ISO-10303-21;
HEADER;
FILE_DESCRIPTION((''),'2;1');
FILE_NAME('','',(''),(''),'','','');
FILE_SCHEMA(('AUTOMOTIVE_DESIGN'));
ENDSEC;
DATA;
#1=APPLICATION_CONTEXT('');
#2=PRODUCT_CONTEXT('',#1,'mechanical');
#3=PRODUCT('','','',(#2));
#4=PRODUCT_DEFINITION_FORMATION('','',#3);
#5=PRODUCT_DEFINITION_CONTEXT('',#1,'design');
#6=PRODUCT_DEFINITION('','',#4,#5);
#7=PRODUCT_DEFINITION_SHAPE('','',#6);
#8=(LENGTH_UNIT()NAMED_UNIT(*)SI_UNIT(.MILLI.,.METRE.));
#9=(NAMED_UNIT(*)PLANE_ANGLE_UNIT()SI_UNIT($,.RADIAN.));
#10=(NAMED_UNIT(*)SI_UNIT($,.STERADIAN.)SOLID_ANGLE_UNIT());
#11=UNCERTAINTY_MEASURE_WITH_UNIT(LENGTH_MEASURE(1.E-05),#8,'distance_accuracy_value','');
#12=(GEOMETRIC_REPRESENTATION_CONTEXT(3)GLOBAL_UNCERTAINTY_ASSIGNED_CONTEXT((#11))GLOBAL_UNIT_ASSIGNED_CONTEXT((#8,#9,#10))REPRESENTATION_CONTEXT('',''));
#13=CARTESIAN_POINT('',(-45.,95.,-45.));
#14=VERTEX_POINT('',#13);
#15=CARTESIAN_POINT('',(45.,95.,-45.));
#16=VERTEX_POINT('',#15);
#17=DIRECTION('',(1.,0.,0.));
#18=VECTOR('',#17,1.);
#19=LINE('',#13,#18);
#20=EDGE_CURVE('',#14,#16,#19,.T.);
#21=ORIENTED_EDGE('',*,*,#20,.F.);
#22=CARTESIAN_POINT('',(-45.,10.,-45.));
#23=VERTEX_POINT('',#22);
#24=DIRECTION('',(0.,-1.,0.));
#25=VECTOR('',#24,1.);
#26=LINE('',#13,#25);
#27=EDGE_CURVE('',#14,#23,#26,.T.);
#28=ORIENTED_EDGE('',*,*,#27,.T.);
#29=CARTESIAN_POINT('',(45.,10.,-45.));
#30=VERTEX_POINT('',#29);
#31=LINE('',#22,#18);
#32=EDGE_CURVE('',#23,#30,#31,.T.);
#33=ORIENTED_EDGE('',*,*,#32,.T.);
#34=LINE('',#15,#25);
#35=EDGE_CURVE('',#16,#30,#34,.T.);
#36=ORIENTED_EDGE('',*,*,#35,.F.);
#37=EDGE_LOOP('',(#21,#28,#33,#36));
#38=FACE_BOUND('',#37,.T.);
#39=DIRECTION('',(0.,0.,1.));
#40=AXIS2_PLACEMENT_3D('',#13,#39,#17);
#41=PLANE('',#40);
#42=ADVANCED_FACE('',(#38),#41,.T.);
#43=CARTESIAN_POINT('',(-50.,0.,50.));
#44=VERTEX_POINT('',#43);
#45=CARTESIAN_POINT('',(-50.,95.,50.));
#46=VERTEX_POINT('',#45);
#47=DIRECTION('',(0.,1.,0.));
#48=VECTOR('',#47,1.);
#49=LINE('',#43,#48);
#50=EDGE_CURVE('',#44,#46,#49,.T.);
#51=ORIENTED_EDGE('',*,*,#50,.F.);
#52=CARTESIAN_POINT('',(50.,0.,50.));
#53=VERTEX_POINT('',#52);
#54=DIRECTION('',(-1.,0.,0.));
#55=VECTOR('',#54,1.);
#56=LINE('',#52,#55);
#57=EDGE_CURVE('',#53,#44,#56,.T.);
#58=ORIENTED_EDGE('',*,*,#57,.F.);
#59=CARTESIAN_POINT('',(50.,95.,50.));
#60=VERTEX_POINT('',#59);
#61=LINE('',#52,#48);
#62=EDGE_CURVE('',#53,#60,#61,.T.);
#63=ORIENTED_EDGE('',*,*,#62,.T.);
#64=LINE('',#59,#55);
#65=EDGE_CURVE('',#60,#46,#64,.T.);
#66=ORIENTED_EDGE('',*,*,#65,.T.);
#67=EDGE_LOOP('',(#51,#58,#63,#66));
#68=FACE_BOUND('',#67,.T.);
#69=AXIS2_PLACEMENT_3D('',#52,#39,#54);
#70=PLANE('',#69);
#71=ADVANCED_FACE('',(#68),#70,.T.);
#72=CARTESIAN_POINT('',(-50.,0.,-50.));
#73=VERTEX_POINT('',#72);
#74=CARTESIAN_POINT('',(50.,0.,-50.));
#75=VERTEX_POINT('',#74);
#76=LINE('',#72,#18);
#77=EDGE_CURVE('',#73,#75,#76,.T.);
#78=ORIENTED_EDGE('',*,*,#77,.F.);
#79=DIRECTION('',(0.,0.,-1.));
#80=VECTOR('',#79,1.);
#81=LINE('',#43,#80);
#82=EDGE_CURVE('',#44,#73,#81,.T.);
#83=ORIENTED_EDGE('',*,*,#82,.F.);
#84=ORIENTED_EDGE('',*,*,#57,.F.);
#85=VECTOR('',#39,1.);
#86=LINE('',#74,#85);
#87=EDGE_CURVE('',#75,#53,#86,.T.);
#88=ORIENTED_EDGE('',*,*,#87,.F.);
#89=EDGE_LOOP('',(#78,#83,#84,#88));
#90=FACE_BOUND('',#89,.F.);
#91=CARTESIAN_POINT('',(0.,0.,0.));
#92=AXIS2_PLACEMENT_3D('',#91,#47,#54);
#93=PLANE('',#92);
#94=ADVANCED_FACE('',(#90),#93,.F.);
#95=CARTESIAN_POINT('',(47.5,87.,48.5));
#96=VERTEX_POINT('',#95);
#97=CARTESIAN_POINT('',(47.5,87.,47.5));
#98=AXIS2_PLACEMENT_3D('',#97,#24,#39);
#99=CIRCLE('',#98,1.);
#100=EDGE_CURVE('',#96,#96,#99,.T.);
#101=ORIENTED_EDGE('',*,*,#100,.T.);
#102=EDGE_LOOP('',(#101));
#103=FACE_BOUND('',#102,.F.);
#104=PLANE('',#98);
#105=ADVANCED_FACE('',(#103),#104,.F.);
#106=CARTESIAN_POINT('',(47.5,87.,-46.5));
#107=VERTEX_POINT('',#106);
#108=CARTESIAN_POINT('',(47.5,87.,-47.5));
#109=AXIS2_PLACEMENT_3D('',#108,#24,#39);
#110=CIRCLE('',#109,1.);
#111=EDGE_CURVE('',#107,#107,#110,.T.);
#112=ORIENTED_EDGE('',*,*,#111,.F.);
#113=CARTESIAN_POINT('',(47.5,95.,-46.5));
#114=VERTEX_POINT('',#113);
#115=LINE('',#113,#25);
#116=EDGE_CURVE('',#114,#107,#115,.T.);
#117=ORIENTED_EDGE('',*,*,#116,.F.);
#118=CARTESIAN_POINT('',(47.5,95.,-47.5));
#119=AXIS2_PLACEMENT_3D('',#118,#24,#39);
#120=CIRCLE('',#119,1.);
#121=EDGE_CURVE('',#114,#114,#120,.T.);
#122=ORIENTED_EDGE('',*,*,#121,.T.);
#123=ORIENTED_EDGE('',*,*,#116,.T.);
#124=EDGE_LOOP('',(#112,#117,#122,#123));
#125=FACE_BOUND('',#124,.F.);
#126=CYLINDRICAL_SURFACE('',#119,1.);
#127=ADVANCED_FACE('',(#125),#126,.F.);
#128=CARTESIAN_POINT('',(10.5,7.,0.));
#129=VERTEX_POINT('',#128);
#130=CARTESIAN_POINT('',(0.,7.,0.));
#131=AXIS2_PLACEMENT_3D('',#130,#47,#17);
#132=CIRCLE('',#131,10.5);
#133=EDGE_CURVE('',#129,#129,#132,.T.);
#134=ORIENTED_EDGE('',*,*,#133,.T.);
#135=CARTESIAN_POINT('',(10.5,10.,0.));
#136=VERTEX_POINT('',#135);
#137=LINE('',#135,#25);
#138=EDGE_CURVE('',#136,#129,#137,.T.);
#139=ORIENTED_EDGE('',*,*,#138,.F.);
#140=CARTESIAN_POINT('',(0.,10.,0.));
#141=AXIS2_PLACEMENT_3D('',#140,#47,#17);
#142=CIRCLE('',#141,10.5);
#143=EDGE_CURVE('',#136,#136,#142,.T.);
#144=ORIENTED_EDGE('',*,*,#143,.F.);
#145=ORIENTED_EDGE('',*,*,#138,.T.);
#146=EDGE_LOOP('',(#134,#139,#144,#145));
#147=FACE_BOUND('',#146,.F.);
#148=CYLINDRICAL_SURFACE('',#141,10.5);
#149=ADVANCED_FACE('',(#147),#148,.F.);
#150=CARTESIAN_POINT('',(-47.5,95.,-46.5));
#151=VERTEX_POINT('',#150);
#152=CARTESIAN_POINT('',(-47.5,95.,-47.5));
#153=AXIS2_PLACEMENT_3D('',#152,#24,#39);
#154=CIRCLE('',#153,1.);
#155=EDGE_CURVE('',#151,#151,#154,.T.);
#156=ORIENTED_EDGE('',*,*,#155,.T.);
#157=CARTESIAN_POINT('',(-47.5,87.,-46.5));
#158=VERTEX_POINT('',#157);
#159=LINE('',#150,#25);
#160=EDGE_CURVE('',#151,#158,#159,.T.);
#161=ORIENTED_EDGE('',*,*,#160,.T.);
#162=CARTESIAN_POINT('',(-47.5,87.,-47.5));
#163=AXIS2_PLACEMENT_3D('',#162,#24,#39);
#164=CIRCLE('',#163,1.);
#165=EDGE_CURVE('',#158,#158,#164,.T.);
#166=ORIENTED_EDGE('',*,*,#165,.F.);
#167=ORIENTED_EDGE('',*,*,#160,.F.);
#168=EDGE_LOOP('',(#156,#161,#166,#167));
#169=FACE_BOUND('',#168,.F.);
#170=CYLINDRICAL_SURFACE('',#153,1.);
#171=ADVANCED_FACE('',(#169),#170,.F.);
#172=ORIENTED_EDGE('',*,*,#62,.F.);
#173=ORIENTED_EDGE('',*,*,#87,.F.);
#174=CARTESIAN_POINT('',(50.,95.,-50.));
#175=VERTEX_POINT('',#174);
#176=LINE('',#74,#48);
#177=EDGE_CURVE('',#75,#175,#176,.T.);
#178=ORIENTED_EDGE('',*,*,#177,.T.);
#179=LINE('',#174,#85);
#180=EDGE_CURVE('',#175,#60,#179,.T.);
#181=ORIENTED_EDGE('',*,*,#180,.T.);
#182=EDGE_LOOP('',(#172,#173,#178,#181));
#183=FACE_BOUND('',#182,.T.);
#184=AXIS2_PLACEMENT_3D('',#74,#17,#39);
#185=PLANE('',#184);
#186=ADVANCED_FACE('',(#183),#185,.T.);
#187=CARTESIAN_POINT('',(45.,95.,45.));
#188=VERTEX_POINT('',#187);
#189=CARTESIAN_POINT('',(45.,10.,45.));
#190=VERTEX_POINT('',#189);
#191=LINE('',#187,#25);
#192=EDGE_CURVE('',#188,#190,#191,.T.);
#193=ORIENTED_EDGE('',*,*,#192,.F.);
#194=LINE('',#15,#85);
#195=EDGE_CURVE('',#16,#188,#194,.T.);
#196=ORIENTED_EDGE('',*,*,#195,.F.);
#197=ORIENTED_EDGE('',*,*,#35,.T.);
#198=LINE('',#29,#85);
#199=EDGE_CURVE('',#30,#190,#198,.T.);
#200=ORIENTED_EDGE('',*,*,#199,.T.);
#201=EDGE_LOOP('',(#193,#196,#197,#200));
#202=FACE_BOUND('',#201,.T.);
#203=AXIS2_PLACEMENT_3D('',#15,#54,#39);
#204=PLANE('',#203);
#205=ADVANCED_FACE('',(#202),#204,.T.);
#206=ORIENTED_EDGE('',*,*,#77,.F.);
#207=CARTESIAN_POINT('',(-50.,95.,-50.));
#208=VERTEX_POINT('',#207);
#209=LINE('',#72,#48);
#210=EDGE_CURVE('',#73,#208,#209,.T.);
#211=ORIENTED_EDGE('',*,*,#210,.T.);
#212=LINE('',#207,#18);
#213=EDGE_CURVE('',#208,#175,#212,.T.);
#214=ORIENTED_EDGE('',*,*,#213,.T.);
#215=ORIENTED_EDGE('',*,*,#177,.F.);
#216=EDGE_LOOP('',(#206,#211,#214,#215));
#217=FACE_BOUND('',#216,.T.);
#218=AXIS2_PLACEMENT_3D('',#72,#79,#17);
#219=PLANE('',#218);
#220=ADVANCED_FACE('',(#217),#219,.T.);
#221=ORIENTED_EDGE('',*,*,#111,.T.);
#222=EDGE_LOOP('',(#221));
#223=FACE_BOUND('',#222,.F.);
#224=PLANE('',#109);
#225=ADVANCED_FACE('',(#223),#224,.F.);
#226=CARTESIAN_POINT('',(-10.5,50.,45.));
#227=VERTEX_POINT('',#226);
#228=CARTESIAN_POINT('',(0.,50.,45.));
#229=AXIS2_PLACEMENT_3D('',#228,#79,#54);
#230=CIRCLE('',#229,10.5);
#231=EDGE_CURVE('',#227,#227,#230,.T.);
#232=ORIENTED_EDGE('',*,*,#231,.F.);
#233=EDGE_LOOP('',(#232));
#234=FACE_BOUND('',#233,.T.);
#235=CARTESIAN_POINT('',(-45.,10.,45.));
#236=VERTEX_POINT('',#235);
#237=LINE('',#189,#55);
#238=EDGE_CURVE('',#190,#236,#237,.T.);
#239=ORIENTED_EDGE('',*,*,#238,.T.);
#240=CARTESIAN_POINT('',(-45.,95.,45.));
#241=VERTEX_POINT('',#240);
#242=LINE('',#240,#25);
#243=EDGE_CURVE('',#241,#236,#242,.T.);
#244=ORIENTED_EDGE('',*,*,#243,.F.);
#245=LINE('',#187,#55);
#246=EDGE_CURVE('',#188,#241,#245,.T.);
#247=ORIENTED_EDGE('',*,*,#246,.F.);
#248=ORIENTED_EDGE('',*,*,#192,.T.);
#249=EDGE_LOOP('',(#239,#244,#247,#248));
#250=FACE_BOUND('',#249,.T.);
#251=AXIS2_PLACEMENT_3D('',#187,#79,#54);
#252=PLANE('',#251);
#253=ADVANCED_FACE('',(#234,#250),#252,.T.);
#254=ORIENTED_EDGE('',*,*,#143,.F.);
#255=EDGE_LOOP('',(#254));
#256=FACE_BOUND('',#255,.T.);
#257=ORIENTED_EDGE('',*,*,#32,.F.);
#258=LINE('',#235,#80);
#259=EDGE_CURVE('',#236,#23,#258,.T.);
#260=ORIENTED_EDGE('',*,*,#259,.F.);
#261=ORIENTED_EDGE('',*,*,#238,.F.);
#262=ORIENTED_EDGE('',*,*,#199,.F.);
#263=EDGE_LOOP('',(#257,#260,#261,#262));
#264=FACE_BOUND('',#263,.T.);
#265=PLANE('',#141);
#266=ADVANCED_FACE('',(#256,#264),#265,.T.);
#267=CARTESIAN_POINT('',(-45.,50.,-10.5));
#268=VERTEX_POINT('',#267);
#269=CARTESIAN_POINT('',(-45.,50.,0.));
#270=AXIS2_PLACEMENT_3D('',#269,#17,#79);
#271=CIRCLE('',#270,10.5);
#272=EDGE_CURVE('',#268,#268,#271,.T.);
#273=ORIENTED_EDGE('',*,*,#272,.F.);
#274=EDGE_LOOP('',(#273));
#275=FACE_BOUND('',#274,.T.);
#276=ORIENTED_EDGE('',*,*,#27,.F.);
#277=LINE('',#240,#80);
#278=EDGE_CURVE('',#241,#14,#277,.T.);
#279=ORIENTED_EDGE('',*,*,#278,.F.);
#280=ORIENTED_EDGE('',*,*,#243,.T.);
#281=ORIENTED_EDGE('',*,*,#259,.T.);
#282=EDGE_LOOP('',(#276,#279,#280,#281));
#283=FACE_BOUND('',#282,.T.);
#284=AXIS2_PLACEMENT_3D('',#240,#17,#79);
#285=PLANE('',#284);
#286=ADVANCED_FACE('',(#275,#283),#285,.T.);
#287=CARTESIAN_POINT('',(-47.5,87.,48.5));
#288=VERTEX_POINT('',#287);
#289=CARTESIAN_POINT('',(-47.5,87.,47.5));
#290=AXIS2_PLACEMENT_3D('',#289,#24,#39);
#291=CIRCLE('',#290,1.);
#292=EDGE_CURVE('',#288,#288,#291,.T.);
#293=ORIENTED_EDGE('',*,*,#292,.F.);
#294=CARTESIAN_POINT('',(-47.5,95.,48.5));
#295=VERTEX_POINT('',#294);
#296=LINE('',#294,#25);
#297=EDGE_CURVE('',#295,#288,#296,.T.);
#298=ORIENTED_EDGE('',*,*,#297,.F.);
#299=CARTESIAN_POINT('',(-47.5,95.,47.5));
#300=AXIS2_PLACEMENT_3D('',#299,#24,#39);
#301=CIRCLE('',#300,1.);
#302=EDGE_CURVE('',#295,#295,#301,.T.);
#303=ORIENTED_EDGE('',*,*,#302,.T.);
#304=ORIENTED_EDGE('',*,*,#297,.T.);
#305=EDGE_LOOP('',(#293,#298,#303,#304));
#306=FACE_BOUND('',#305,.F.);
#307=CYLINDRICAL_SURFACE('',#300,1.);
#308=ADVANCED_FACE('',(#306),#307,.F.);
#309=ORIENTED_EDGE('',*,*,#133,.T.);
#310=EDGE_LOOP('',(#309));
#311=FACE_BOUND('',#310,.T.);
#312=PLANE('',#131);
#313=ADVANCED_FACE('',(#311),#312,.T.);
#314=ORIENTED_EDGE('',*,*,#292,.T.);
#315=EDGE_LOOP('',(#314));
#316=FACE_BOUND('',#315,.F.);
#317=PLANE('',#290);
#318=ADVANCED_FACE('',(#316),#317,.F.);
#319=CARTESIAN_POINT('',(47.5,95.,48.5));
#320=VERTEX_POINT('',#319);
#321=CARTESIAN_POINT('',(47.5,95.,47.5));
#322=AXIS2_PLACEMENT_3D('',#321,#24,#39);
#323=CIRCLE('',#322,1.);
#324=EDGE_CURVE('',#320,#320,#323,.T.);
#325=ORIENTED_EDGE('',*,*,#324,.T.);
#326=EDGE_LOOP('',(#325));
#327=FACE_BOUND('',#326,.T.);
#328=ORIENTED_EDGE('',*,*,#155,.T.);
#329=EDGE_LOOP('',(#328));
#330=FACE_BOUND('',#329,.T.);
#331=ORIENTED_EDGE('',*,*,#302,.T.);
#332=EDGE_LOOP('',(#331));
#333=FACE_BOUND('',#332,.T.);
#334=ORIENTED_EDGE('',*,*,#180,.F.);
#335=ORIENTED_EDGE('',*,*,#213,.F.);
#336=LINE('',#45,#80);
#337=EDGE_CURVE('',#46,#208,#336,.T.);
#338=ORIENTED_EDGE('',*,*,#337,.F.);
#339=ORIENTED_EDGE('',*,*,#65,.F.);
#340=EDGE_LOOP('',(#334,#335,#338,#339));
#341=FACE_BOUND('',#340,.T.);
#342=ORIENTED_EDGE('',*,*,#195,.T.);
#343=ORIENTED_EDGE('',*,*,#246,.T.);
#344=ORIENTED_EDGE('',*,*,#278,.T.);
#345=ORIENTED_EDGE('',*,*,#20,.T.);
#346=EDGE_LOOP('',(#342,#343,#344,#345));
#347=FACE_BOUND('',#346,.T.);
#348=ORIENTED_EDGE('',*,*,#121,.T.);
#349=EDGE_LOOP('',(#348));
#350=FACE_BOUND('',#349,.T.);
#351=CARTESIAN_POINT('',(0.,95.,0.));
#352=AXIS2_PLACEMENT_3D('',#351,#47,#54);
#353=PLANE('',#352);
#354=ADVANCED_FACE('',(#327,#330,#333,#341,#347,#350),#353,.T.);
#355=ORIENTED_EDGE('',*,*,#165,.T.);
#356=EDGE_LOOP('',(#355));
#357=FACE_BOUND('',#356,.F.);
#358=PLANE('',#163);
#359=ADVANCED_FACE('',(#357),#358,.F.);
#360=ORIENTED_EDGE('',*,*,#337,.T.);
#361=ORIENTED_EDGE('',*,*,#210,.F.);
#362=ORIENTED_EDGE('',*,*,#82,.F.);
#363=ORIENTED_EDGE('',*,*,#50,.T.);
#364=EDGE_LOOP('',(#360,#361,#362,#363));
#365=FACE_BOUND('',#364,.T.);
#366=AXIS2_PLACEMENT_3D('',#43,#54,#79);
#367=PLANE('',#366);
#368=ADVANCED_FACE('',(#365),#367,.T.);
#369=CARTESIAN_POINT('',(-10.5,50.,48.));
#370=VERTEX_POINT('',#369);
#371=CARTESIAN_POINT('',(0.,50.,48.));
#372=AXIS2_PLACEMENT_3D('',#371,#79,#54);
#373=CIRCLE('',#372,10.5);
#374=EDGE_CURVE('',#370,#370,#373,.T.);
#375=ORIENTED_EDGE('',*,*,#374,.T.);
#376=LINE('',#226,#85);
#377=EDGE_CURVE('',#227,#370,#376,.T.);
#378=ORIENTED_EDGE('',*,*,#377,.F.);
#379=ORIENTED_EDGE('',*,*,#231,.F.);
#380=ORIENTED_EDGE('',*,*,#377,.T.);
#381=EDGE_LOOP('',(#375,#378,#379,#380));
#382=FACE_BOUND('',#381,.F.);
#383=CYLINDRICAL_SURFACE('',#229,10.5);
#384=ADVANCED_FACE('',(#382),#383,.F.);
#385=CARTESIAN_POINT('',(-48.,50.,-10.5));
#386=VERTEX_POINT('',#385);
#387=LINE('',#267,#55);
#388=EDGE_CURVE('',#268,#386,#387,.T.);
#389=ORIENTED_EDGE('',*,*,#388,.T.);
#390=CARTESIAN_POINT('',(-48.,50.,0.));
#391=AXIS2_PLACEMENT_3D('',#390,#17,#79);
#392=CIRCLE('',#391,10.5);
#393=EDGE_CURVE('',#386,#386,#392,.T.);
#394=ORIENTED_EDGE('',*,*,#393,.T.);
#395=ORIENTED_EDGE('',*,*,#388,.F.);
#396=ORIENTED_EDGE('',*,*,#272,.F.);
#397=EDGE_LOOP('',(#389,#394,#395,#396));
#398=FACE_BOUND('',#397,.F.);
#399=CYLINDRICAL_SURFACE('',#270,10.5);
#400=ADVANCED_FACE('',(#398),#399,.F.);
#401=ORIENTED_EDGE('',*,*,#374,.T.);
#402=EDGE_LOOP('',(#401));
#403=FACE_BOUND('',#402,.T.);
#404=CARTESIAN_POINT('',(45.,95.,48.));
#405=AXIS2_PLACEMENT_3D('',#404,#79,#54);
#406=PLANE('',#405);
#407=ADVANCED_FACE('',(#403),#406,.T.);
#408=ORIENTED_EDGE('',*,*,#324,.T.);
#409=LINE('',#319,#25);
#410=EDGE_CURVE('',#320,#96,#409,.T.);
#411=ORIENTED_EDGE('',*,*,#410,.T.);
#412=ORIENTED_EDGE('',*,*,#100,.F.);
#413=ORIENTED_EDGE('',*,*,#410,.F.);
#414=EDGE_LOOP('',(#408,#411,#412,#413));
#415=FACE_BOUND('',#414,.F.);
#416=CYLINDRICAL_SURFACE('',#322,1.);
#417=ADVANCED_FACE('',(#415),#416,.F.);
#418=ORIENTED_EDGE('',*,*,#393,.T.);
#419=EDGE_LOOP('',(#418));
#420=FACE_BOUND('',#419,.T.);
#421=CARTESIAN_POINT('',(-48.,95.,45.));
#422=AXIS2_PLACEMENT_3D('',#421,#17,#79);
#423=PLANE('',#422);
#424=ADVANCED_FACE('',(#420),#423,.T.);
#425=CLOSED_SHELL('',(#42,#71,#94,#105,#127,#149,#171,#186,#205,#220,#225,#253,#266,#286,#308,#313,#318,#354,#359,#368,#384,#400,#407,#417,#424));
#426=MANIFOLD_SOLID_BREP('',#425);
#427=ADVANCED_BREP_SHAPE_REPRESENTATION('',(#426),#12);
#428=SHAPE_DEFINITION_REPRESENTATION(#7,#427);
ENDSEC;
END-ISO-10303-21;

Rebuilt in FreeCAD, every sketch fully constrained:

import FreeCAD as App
import Part
import Sketcher
Q = App.Units.Quantity


def add_polygon(sketch, points):
    """Adds a closed chain of lines whose ends are joined by coincident constraints."""
    first, n = sketch.GeometryCount, len(points)
    for a, b in zip(points, points[1:] + points[:1]):
        sketch.addGeometry(Part.LineSegment(App.Vector(*a, 0), App.Vector(*b, 0)), False)
    for i in range(n):
        sketch.addConstraint(Sketcher.Constraint("Coincident", first + i, 2, first + (i + 1) % n, 1))

doc = App.newDocument("Part")
body = doc.addObject("PartDesign::Body", "Body")

# Sketch on XZ plane
sketch1 = body.newObject("Sketcher::SketchObject", "Sketch")
sketch1.AttachmentSupport = (doc.getObject("XZ_Plane"), [""])
sketch1.MapMode = "FlatFace"
add_polygon(sketch1, [(50, -50), (-50, -50), (-50, 50), (50, 50)])  # lines 0-3
sketch1.addConstraint(Sketcher.Constraint("Horizontal", 0))
sketch1.addConstraint(Sketcher.Constraint("Vertical", 1))
sketch1.addConstraint(Sketcher.Constraint("Horizontal", 2))
sketch1.addConstraint(Sketcher.Constraint("Vertical", 3))
sketch1.addConstraint(Sketcher.Constraint("Symmetric", 0, 2, 2, 2, -1, 1))
sketch1.addConstraint(Sketcher.Constraint("Equal", 2, 1))
sketch1.addConstraint(Sketcher.Constraint("DistanceX", 0, 2, 0, 1, Q("100 mm")))
pad1 = body.newObject("PartDesign::Pad", "Pad")
pad1.Profile = sketch1
pad1.Length = 95
pad1.Reversed = True

# Sketch on XZ plane
sketch2 = body.newObject("Sketcher::SketchObject", "Sketch001")
sketch2.AttachmentSupport = (doc.getObject("XZ_Plane"), [""])
sketch2.MapMode = "FlatFace"
sketch2.AttachmentOffset = App.Placement(App.Vector(0, 0, -95), App.Rotation())
add_polygon(sketch2, [(45, -45), (-45, -45), (-45, 45), (45, 45)])  # lines 0-3
sketch2.addConstraint(Sketcher.Constraint("Horizontal", 0))
sketch2.addConstraint(Sketcher.Constraint("Vertical", 1))
sketch2.addConstraint(Sketcher.Constraint("Horizontal", 2))
sketch2.addConstraint(Sketcher.Constraint("Vertical", 3))
sketch2.addConstraint(Sketcher.Constraint("Symmetric", 0, 2, 2, 2, -1, 1))
sketch2.addConstraint(Sketcher.Constraint("Equal", 2, 1))
sketch2.addConstraint(Sketcher.Constraint("DistanceX", 0, 2, 0, 1, Q("90 mm")))
pocket1 = body.newObject("PartDesign::Pocket", "Pocket")
pocket1.Profile = sketch2
pocket1.Length = 85
pocket1.Reversed = True

# Sketch on XZ plane
sketch3 = body.newObject("Sketcher::SketchObject", "Sketch002")
sketch3.AttachmentSupport = (doc.getObject("XZ_Plane"), [""])
sketch3.MapMode = "FlatFace"
sketch3.AttachmentOffset = App.Placement(App.Vector(0, 0, -95), App.Rotation())
sketch3.addGeometry(Part.Circle(App.Vector(47.5, -47.5, 0), App.Vector(0, 0, 1), 1), False)
sketch3.addGeometry(Part.Circle(App.Vector(47.5, 47.5, 0), App.Vector(0, 0, 1), 1), False)
sketch3.addGeometry(Part.Circle(App.Vector(-47.5, 47.5, 0), App.Vector(0, 0, 1), 1), False)
sketch3.addGeometry(Part.Circle(App.Vector(-47.5, -47.5, 0), App.Vector(0, 0, 1), 1), False)
sketch3.addConstraint(Sketcher.Constraint("Equal", 0, 1))
sketch3.addConstraint(Sketcher.Constraint("Equal", 1, 2))
sketch3.addConstraint(Sketcher.Constraint("Equal", 2, 3))
sketch3.addConstraint(Sketcher.Constraint("Symmetric", 0, 3, 2, 3, -1, 1))
sketch3.addConstraint(Sketcher.Constraint("Symmetric", 1, 3, 3, 3, -1, 1))
sketch3.addConstraint(Sketcher.Constraint("Symmetric", 1, 3, 2, 3, -2))
sketch3.addConstraint(Sketcher.Constraint("Diameter", 0, Q("2 mm")))
sketch3.addConstraint(Sketcher.Constraint("DistanceY", 0, 3, 1, 3, Q("95 mm")))
sketch3.addConstraint(Sketcher.Constraint("DistanceX", 2, 3, 1, 3, Q("95 mm")))
doc.recompute()
hole = body.newObject("PartDesign::Hole", "Hole")
hole.Profile = sketch3
hole.ThreadType = "None"
hole.Diameter = 2
hole.DepthType = "Dimension"
hole.Depth = 8
hole.DrillPoint = "Flat"
hole.Reversed = True

# Sketch on YZ plane
sketch4 = body.newObject("Sketcher::SketchObject", "Sketch003")
sketch4.AttachmentSupport = (doc.getObject("YZ_Plane"), [""])
sketch4.MapMode = "FlatFace"
sketch4.AttachmentOffset = App.Placement(App.Vector(0, 0, -45), App.Rotation())
sketch4.addGeometry(Part.Circle(App.Vector(50, 0, 0), App.Vector(0, 0, 1), 10), False)
sketch4.addConstraint(Sketcher.Constraint("PointOnObject", 0, 3, -1))
sketch4.addConstraint(Sketcher.Constraint("Diameter", 0, Q("21 mm")))
sketch4.addConstraint(Sketcher.Constraint("DistanceX", -1, 1, 0, 3, Q("50 mm")))
pocket2 = body.newObject("PartDesign::Pocket", "Pocket001")
pocket2.Profile = sketch4
pocket2.Length = 3

# Sketch on XZ plane
sketch5 = body.newObject("Sketcher::SketchObject", "Sketch004")
sketch5.AttachmentSupport = (doc.getObject("XZ_Plane"), [""])
sketch5.MapMode = "FlatFace"
sketch5.AttachmentOffset = App.Placement(App.Vector(0, 0, -10), App.Rotation())
sketch5.addGeometry(Part.Circle(App.Vector(0, 0, 0), App.Vector(0, 0, 1), 10), False)
sketch5.addConstraint(Sketcher.Constraint("Coincident", 0, 3, -1, 1))
sketch5.addConstraint(Sketcher.Constraint("Diameter", 0, Q("21 mm")))
pocket3 = body.newObject("PartDesign::Pocket", "Pocket002")
pocket3.Profile = sketch5
pocket3.Length = 3
pocket3.Reversed = True

# Sketch on XY plane
sketch6 = body.newObject("Sketcher::SketchObject", "Sketch005")
sketch6.AttachmentSupport = (doc.getObject("XY_Plane"), [""])
sketch6.MapMode = "FlatFace"
sketch6.AttachmentOffset = App.Placement(App.Vector(0, 0, 45), App.Rotation())
sketch6.addGeometry(Part.Circle(App.Vector(0, 50, 0), App.Vector(0, 0, 1), 10), False)
sketch6.addConstraint(Sketcher.Constraint("PointOnObject", 0, 3, -2))
sketch6.addConstraint(Sketcher.Constraint("Diameter", 0, Q("21 mm")))
sketch6.addConstraint(Sketcher.Constraint("DistanceY", -1, 1, 0, 3, Q("50 mm")))
pocket4 = body.newObject("PartDesign::Pocket", "Pocket003")
pocket4.Profile = sketch6
pocket4.Length = 3
pocket4.Reversed = True

doc.recompute()
